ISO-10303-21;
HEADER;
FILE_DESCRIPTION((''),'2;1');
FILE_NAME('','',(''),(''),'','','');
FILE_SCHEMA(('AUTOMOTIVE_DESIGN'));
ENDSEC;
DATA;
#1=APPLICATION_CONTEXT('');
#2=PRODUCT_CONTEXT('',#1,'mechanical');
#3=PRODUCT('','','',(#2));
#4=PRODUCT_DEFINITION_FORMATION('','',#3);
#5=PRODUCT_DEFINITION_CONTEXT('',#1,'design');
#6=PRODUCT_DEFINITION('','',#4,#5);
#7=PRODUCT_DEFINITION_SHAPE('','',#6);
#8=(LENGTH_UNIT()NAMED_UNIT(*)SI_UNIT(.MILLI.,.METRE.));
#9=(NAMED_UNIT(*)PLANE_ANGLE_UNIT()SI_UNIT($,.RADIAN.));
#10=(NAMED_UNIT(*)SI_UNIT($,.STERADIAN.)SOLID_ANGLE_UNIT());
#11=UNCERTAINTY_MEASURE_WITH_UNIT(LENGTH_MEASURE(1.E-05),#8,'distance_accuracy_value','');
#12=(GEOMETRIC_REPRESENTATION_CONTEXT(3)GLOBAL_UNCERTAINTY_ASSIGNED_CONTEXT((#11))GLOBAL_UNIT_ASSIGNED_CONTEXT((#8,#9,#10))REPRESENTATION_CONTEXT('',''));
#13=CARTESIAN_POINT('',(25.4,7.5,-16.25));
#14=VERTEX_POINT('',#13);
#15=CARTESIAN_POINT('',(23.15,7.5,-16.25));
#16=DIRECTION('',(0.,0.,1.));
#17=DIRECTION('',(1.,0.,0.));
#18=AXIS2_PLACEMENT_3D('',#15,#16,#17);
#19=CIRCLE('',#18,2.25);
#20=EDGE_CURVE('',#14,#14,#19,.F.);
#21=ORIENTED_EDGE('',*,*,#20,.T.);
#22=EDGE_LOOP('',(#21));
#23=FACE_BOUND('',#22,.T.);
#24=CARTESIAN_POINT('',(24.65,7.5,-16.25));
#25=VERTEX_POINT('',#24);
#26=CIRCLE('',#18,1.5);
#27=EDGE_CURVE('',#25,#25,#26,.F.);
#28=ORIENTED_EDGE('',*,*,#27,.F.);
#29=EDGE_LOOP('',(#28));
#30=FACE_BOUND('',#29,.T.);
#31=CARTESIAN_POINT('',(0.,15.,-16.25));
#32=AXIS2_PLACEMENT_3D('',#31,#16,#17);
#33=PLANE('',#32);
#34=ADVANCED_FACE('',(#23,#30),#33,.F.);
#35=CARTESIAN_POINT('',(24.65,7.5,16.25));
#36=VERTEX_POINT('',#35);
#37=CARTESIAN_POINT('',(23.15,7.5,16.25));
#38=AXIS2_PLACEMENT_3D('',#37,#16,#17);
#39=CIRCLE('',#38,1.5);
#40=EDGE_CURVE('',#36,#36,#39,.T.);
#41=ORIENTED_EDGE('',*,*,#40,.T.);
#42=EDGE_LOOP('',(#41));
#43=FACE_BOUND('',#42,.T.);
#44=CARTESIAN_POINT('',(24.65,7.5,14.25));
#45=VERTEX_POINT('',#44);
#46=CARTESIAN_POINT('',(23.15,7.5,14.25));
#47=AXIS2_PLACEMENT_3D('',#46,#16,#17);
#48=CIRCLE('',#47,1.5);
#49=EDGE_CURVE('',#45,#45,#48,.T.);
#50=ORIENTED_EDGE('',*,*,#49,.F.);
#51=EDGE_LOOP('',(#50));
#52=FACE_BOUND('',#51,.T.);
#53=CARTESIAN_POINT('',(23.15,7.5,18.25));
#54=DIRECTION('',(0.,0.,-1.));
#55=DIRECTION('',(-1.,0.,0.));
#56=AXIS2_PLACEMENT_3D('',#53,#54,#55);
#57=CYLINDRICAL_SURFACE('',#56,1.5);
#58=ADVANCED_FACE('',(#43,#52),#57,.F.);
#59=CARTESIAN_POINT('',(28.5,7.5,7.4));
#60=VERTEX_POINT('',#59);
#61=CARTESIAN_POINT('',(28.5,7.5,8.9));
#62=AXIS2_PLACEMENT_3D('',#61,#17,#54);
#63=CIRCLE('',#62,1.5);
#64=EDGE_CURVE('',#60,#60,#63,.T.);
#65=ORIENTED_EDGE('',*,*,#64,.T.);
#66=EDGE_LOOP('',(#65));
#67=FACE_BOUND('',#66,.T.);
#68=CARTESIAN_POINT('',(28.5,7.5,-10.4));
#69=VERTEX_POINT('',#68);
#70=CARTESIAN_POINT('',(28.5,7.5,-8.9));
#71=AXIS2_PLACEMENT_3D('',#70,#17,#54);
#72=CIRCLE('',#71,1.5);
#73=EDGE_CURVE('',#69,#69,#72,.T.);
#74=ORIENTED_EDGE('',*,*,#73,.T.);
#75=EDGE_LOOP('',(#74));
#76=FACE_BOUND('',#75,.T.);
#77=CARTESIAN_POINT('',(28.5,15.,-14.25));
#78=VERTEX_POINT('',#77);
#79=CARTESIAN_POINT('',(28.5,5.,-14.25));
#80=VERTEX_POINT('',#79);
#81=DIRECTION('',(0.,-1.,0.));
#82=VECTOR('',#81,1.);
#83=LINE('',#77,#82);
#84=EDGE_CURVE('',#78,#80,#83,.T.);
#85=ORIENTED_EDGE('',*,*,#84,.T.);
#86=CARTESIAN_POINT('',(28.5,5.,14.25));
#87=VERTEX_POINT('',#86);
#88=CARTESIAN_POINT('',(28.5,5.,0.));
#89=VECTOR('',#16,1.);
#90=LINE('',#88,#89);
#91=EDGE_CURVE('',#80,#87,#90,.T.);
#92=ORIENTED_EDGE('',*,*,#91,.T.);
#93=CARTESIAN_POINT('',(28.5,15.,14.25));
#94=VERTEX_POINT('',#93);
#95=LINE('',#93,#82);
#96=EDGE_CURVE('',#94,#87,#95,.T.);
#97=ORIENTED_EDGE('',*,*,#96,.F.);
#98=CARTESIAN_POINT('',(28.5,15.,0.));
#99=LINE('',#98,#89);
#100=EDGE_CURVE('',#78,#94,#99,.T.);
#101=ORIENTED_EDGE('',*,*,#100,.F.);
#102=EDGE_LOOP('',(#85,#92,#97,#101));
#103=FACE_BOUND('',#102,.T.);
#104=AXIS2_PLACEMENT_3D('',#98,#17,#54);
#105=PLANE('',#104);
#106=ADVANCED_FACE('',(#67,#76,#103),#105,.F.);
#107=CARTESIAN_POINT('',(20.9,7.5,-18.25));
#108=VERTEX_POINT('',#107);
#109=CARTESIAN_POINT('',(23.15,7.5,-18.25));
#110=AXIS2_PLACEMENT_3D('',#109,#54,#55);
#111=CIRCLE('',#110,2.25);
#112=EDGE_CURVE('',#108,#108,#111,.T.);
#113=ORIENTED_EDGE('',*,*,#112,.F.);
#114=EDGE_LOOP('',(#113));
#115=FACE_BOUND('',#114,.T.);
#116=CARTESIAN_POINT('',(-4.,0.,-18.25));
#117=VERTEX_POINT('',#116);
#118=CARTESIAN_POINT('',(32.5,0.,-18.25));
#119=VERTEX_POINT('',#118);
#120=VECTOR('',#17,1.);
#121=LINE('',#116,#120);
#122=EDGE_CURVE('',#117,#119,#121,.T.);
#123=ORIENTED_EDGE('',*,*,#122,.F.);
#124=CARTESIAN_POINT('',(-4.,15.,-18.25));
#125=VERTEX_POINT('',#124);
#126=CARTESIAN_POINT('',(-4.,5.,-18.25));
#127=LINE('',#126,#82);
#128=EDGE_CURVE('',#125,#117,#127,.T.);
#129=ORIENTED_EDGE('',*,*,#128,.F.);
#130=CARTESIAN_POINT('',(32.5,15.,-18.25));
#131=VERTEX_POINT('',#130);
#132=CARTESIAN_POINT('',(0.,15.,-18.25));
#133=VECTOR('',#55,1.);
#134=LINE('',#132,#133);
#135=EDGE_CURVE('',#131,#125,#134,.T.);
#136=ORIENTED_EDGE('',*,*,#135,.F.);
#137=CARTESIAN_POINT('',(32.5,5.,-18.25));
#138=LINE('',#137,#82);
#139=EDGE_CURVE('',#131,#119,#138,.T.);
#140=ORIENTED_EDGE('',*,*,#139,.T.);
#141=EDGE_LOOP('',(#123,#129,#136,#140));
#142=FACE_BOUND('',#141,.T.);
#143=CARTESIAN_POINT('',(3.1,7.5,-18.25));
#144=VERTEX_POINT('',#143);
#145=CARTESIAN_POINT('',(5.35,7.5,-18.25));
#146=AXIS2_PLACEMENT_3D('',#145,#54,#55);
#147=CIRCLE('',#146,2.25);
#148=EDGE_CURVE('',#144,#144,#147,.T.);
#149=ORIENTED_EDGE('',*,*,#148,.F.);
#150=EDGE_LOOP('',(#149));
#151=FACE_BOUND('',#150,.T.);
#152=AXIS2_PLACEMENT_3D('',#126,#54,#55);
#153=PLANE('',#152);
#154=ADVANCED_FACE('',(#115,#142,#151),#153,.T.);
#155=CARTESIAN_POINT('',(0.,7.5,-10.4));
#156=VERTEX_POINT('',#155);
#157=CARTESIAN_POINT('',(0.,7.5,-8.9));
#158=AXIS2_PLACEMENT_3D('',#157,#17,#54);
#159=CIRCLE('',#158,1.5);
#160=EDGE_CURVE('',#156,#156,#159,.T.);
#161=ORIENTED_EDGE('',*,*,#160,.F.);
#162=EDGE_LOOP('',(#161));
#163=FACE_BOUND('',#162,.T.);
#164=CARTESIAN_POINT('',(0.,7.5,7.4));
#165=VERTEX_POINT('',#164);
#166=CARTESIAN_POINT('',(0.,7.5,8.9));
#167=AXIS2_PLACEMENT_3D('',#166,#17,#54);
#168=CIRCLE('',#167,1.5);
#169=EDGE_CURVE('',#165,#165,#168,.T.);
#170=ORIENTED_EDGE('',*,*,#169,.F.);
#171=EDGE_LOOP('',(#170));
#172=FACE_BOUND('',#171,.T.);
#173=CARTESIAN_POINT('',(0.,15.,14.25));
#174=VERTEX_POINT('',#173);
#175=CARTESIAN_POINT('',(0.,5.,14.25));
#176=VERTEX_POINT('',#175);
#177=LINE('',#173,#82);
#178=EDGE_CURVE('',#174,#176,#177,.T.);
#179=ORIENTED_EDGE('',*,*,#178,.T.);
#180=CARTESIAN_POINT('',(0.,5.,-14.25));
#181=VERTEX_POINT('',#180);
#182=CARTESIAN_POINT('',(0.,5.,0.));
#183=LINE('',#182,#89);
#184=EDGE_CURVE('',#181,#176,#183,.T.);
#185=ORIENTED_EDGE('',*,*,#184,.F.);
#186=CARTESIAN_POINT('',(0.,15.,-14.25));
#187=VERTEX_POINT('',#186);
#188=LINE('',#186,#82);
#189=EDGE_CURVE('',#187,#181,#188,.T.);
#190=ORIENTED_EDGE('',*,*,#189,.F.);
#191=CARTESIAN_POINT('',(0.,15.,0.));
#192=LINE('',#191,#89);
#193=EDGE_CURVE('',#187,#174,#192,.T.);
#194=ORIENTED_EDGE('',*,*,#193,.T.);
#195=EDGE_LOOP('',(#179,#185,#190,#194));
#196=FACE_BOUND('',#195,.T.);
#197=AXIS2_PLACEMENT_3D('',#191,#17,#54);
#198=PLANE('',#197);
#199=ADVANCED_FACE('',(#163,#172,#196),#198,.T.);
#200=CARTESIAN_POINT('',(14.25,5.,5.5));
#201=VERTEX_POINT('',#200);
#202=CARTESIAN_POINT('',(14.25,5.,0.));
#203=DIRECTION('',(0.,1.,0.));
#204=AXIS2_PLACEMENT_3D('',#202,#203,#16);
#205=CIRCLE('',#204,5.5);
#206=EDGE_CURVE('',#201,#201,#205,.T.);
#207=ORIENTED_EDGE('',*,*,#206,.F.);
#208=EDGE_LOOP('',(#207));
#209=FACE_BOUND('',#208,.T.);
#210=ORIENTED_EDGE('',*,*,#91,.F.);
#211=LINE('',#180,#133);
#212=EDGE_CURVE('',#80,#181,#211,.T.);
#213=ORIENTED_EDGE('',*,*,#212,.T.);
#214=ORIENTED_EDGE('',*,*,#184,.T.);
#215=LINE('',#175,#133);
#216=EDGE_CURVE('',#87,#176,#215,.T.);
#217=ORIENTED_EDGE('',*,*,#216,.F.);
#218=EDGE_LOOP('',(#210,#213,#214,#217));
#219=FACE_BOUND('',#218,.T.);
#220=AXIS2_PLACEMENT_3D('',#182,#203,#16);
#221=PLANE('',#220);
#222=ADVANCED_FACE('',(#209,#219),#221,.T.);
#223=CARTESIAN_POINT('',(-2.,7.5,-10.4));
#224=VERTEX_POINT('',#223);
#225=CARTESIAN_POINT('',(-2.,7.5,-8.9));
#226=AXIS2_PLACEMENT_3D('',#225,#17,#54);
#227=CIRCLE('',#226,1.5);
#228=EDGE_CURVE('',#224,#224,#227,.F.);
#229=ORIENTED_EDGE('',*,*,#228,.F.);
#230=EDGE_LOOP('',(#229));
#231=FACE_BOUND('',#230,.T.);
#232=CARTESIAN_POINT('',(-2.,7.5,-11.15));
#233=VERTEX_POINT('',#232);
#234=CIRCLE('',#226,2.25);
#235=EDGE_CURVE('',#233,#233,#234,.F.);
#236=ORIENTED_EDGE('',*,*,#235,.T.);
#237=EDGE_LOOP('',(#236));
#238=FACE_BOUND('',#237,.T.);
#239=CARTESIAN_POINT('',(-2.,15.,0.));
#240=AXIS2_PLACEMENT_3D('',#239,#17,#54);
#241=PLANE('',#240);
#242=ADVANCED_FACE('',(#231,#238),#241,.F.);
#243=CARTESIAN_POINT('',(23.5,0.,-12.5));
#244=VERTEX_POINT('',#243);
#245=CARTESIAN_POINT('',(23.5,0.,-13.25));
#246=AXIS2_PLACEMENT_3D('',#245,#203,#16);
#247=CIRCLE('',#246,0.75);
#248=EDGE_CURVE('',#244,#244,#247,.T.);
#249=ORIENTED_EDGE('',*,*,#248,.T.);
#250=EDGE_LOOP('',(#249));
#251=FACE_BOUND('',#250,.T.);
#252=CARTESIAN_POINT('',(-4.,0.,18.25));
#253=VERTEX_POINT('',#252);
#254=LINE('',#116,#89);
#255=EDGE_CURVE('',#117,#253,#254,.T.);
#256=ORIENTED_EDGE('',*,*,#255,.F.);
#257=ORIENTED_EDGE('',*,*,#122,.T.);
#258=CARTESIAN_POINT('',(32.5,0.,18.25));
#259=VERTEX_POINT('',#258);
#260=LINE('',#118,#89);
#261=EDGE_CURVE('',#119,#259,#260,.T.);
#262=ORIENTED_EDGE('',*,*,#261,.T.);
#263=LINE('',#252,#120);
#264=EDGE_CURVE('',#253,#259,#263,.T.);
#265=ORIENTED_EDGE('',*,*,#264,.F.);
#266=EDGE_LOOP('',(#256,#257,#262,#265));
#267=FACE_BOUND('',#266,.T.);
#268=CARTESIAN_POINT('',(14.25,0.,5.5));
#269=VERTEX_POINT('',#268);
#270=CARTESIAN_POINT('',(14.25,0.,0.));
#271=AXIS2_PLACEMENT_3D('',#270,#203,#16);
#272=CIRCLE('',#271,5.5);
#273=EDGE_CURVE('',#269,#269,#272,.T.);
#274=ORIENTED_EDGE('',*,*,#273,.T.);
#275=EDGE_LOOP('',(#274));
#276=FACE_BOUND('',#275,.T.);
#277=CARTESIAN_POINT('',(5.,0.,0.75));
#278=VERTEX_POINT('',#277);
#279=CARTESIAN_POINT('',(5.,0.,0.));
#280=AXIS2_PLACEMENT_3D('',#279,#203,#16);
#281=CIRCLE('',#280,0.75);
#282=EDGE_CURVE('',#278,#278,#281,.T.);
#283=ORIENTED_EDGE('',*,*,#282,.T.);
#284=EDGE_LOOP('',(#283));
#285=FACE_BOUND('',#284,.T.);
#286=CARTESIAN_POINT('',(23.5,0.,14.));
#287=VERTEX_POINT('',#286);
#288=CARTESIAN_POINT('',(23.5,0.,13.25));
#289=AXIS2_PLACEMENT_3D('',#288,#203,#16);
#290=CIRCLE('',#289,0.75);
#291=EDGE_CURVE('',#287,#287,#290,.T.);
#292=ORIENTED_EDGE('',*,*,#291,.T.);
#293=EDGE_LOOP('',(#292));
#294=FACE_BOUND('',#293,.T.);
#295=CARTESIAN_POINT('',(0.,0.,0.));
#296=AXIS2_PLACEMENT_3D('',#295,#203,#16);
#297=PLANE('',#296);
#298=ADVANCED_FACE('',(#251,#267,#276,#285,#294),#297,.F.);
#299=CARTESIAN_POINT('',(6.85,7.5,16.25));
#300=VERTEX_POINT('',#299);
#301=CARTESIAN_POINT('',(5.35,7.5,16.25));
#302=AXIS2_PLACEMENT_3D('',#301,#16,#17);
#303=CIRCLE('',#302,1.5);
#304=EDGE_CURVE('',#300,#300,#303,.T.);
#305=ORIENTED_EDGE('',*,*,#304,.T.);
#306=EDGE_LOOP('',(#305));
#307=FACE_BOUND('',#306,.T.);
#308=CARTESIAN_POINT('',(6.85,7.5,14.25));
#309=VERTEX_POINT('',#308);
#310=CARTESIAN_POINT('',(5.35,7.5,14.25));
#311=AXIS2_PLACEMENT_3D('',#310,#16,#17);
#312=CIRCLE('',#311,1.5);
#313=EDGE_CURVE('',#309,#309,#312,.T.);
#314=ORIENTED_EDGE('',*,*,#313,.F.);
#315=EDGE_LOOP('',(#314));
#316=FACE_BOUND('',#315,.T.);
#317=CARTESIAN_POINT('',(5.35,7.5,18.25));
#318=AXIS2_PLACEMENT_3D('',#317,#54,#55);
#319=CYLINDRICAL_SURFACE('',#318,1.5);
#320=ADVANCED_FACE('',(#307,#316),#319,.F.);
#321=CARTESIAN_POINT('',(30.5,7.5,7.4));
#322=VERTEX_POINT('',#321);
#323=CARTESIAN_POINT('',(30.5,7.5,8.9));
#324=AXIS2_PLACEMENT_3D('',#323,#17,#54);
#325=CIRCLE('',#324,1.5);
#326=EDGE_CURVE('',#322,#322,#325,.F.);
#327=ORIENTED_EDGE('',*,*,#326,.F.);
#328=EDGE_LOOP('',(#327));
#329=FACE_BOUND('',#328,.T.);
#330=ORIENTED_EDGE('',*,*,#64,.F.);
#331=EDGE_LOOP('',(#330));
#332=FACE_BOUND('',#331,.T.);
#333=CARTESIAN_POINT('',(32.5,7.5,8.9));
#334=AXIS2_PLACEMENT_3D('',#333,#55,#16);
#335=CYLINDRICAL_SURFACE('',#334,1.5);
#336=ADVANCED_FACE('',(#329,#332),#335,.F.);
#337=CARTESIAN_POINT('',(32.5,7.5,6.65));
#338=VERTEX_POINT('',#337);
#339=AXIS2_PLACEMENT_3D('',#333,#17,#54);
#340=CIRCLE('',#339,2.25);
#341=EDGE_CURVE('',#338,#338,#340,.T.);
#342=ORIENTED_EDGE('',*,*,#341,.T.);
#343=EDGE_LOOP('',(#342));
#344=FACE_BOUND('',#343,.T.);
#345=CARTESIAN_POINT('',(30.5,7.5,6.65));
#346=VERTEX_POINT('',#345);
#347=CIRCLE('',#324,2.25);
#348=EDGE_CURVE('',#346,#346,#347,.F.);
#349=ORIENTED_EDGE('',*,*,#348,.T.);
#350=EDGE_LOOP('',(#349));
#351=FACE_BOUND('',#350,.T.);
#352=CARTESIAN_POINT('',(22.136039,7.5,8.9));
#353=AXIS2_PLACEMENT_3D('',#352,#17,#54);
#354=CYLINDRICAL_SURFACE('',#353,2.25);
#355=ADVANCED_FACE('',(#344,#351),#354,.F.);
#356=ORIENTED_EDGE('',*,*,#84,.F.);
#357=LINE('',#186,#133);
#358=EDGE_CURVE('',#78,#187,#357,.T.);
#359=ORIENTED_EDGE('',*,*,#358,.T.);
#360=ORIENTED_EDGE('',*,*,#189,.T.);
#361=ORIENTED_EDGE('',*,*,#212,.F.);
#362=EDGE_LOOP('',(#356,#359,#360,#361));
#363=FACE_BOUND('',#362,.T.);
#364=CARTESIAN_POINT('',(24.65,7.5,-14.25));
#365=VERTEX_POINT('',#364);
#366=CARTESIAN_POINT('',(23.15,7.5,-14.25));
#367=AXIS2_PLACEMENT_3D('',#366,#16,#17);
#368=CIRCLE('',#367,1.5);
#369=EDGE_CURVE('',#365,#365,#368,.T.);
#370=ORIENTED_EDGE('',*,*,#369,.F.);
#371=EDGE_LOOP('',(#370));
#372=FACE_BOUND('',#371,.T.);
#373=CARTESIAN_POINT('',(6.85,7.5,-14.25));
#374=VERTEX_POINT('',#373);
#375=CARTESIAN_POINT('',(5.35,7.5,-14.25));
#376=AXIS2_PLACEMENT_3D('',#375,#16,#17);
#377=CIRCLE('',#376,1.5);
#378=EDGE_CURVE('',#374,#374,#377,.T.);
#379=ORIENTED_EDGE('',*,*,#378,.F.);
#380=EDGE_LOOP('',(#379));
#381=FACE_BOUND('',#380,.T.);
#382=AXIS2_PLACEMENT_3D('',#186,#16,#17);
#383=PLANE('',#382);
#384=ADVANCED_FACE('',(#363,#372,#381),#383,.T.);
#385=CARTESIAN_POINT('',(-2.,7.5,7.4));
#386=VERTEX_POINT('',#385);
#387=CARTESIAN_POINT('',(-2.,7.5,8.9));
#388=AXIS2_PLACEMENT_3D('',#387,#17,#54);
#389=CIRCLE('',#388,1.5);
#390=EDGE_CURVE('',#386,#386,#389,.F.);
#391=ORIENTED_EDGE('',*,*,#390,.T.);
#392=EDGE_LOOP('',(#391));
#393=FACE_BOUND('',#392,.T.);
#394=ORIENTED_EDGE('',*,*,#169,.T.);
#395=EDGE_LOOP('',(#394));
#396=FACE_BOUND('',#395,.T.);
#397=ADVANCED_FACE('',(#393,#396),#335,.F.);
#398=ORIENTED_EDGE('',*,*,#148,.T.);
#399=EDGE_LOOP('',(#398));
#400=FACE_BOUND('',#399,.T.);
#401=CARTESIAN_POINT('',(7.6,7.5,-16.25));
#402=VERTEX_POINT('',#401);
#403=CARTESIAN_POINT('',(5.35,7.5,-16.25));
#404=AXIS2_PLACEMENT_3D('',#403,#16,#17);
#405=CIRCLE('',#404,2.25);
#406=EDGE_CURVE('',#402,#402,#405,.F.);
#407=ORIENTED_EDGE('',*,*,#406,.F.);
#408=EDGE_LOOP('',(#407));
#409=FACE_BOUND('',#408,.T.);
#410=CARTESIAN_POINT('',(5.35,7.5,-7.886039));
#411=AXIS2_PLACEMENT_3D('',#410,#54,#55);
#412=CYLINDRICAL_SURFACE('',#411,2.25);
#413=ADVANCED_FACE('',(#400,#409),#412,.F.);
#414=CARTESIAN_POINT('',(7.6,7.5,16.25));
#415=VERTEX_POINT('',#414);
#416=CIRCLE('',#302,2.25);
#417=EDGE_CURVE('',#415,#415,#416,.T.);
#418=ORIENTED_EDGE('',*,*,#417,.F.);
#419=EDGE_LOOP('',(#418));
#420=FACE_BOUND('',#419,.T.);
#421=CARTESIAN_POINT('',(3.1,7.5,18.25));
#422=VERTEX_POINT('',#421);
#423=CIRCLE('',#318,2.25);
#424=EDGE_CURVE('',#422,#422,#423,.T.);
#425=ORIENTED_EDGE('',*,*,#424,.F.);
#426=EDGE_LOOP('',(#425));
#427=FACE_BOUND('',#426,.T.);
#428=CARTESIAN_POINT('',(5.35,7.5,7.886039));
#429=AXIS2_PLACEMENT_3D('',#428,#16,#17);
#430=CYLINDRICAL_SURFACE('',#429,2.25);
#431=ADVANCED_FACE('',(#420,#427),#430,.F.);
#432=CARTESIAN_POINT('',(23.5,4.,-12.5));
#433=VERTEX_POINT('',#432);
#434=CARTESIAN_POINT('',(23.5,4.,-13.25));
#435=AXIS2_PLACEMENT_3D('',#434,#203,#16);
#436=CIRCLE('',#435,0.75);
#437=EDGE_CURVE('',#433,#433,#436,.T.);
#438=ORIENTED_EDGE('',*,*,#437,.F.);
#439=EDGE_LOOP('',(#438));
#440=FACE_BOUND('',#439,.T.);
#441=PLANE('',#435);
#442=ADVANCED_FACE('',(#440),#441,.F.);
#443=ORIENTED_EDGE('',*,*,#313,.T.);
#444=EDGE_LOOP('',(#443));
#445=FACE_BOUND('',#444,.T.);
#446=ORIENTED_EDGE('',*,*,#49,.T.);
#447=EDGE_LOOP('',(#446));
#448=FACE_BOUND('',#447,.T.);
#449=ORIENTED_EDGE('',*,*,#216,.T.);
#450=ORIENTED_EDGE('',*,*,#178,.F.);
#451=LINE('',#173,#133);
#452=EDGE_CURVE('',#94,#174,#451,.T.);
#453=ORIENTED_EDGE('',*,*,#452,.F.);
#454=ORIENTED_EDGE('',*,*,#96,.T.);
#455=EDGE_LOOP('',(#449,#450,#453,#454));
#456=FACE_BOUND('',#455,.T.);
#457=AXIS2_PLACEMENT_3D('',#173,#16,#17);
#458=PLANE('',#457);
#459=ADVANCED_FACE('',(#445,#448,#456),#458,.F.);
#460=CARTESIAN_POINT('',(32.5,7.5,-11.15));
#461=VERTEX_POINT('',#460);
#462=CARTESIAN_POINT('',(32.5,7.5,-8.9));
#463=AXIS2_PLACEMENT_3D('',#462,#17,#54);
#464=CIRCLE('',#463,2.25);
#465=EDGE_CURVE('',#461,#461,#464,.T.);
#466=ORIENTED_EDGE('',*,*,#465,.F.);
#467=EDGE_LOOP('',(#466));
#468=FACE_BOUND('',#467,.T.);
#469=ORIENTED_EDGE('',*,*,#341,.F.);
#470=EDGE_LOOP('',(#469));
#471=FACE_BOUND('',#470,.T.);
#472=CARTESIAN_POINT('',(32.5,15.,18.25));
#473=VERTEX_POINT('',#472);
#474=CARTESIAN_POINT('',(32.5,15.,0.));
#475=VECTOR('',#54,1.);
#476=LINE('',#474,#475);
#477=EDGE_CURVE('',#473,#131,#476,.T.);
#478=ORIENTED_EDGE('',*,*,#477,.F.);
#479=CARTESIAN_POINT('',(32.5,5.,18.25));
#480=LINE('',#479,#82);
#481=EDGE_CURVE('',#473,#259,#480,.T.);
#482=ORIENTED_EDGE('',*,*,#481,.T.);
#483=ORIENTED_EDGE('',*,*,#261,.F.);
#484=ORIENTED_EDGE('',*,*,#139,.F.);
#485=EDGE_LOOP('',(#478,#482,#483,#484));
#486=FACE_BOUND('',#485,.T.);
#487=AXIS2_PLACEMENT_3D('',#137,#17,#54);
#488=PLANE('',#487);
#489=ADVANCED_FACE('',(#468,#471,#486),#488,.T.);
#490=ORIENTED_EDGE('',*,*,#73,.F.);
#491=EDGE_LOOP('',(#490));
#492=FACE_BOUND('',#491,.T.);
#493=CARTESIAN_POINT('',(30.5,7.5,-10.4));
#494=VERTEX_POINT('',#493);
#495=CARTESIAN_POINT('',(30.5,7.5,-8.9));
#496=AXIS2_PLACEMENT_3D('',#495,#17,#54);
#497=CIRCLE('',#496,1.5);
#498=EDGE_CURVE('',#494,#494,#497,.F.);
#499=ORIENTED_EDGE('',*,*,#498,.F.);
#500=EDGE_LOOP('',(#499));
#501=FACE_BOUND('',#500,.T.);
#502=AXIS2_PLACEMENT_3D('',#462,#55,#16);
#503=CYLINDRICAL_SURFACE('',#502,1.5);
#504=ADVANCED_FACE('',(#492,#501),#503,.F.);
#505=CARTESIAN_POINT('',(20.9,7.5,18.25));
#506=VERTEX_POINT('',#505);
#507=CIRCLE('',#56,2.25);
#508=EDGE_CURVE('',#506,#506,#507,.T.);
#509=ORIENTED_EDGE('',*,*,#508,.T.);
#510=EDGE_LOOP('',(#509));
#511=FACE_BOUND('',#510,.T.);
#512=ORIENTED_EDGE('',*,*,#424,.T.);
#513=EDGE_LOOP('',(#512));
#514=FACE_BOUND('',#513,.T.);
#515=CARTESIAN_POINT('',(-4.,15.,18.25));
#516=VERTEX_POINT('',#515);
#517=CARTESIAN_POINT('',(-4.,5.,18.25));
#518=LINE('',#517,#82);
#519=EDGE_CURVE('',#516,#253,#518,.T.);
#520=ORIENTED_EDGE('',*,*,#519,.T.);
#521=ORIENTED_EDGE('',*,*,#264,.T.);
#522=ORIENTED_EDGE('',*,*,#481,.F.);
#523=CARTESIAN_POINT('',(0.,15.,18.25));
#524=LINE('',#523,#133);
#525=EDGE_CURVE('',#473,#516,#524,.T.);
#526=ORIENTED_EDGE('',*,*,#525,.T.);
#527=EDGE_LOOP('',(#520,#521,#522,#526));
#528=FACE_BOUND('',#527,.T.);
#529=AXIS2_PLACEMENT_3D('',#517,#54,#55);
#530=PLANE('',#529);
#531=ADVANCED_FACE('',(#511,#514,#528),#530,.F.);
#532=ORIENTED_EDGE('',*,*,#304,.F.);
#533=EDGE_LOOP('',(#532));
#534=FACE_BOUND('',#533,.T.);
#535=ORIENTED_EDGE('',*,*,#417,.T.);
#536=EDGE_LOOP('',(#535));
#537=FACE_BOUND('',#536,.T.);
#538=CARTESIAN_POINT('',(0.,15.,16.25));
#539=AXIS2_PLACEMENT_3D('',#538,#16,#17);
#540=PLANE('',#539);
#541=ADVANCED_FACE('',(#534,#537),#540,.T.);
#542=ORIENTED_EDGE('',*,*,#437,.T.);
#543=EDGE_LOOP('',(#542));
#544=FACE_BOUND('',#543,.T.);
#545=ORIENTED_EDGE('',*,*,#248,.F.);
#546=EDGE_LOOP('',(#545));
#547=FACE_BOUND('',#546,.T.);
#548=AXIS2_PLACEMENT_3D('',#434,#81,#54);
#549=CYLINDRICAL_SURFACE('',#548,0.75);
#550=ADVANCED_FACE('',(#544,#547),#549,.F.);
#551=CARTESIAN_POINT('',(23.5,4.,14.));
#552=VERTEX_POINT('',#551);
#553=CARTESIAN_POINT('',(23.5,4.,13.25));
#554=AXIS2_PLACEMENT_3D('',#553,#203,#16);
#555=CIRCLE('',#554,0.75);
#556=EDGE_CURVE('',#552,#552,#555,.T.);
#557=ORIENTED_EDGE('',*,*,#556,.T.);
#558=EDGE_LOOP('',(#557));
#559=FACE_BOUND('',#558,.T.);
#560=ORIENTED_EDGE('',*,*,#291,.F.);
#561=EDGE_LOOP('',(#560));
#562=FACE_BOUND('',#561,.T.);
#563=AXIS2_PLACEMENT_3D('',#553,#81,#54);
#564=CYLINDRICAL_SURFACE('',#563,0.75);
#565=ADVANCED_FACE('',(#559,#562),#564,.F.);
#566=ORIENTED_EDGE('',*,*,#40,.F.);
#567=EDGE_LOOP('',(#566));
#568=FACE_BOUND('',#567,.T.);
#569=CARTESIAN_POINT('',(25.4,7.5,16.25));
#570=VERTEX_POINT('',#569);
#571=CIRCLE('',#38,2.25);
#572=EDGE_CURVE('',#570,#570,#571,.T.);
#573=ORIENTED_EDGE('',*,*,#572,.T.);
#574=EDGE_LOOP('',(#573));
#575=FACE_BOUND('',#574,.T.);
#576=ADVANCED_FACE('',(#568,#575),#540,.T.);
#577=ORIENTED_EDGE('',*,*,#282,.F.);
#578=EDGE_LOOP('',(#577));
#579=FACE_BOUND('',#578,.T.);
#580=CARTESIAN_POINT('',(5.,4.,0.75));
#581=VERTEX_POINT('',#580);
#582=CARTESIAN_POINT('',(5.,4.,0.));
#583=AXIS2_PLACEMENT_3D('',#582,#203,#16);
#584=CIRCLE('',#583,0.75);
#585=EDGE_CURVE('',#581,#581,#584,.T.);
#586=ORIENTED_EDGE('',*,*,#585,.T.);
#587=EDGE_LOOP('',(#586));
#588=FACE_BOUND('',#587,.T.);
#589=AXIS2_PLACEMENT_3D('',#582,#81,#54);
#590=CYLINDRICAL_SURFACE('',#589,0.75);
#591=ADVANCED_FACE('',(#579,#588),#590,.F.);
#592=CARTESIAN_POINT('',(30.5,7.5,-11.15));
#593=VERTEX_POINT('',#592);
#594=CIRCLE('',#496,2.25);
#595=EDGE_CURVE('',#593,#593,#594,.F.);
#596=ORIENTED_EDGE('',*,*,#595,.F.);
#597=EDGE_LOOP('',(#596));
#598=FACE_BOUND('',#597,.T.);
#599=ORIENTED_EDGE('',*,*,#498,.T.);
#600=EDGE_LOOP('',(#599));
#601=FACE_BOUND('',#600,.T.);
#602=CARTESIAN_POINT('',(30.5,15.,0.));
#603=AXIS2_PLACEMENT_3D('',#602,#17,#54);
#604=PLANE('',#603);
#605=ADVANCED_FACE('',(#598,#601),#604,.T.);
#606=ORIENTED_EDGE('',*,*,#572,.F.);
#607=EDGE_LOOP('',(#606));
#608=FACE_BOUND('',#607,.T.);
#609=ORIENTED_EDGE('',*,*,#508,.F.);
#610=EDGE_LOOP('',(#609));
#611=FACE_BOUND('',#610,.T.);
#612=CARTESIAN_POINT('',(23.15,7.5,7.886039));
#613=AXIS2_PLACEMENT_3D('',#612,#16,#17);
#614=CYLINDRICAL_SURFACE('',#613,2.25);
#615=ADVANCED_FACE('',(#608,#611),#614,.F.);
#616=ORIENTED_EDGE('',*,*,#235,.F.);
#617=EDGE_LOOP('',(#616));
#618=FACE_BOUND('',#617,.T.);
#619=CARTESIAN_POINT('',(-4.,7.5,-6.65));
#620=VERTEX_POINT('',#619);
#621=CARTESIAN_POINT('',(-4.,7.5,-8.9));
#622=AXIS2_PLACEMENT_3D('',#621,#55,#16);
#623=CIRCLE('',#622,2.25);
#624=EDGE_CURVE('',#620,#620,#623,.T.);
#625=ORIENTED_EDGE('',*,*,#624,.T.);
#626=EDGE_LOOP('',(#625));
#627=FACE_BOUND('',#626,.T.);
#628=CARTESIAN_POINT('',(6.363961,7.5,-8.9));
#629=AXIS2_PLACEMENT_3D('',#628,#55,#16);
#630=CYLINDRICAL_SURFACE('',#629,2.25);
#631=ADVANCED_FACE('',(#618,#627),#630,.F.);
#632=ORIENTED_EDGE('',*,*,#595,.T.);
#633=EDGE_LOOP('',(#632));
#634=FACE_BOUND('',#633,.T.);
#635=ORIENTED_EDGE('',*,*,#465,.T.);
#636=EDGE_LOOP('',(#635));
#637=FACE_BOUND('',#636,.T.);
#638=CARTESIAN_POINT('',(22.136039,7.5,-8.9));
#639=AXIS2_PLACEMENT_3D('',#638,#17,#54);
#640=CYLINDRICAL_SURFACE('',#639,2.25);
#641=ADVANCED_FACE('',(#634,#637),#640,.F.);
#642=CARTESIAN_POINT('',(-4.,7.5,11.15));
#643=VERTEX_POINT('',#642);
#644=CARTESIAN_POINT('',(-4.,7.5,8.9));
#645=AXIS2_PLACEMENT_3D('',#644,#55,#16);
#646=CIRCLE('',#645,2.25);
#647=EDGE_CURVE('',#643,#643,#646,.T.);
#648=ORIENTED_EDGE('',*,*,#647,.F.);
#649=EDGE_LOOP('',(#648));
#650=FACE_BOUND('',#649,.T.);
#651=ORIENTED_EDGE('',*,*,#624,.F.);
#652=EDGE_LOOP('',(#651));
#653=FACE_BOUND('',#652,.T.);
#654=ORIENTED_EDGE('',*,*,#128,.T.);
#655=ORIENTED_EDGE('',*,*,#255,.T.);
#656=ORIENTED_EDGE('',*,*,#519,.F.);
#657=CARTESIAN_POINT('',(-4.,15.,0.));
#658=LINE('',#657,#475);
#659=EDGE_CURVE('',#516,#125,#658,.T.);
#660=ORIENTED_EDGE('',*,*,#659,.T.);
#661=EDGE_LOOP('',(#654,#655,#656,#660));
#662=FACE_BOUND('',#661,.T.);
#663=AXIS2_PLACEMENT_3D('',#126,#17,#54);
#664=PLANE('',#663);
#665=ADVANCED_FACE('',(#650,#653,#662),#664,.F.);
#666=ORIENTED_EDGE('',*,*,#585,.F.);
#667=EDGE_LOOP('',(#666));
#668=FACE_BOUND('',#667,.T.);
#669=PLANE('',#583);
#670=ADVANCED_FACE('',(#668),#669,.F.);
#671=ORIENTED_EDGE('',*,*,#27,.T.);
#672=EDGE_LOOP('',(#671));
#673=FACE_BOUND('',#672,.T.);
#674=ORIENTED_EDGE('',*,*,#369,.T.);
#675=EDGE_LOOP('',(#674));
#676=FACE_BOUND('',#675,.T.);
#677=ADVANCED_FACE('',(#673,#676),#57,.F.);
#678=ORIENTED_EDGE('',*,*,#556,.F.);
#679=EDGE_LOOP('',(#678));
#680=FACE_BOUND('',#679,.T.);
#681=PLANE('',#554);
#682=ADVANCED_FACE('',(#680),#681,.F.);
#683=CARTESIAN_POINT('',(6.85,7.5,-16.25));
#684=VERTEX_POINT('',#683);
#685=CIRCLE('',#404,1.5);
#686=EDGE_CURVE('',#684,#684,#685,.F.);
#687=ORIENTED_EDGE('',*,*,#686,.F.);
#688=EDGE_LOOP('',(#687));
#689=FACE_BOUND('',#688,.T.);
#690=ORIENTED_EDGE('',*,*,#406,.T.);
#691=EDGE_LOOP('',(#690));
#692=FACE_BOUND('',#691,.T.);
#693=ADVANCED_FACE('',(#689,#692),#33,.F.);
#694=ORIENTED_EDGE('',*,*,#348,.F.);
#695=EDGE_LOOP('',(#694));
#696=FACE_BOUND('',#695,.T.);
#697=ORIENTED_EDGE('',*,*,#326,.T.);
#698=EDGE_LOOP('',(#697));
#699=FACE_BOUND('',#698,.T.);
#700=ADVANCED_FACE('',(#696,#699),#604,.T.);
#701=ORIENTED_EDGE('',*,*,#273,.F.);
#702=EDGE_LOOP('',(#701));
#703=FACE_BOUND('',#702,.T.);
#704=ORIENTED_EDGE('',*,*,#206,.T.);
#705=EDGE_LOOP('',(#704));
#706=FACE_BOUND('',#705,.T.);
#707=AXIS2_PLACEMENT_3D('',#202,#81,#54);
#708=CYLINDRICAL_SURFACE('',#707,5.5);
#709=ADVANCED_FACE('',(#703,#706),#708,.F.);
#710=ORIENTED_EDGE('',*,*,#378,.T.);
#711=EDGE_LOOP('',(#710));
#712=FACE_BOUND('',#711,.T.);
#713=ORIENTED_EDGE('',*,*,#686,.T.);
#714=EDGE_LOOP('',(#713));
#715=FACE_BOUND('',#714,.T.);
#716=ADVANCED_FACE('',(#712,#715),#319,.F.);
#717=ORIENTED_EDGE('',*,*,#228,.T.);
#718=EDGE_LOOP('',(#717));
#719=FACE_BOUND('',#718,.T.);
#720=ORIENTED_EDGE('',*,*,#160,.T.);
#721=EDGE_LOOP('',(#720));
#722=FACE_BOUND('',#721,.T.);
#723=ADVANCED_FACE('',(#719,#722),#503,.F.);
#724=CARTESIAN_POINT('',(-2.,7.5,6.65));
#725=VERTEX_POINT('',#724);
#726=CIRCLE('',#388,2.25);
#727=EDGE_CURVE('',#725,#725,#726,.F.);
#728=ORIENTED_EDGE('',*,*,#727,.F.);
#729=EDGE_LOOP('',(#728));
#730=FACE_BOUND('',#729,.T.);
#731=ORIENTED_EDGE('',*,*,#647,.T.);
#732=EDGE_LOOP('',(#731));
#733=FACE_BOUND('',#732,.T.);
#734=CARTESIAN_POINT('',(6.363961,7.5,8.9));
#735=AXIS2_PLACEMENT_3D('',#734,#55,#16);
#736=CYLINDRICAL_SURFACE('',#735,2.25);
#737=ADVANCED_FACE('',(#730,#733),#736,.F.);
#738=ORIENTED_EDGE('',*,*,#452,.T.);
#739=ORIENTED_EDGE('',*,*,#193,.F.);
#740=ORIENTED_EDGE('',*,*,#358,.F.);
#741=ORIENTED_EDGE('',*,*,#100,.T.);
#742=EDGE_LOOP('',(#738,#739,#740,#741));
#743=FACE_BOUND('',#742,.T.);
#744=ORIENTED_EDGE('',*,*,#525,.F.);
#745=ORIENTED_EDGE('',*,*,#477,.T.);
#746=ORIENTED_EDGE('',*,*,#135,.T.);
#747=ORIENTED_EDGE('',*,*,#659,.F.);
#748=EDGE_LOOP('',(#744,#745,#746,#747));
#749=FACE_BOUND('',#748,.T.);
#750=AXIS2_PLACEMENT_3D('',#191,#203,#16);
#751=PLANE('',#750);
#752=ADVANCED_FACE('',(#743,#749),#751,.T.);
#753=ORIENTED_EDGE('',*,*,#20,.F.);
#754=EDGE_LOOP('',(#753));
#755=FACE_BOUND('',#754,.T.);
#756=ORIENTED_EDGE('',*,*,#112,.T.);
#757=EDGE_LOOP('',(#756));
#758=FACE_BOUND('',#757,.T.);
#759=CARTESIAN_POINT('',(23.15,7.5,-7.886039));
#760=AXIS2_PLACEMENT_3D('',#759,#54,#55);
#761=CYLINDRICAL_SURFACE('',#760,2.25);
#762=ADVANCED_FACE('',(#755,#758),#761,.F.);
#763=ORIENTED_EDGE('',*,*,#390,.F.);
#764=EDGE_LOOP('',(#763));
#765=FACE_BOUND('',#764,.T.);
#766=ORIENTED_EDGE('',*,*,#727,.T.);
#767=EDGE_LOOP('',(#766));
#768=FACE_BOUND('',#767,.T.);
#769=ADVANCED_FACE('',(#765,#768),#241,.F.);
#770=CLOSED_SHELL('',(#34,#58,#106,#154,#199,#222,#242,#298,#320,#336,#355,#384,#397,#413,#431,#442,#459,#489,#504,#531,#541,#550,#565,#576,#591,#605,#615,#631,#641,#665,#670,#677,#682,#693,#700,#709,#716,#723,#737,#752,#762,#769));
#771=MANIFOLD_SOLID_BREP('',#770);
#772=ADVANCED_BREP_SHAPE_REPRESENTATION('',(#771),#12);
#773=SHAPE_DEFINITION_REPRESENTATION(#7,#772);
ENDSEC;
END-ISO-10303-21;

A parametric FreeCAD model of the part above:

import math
import FreeCAD as App
import Part
import Sketcher
Q = App.Units.Quantity


def add_polygon(sketch, points):
    """Adds a closed chain of lines whose ends are joined by coincident constraints."""
    first, n = sketch.GeometryCount, len(points)
    for a, b in zip(points, points[1:] + points[:1]):
        sketch.addGeometry(Part.LineSegment(App.Vector(*a, 0), App.Vector(*b, 0)), False)
    for i in range(n):
        sketch.addConstraint(Sketcher.Constraint("Coincident", first + i, 2, first + (i + 1) % n, 1))

doc = App.newDocument("Part")
body = doc.addObject("PartDesign::Body", "Body")

# Sketch on XZ plane
sketch1 = body.newObject("Sketcher::SketchObject", "Sketch")
sketch1.AttachmentSupport = (doc.getObject("XZ_Plane"), [""])
sketch1.MapMode = "FlatFace"
add_polygon(sketch1, [(-4, -18), (-4, 18), (32, 18), (32, -18)])  # lines 0-3
sketch1.addGeometry(Part.Circle(App.Vector(14, 0, 0), App.Vector(0, 0, 1), 6), False)  # 4
sketch1.addConstraint(Sketcher.Constraint("Vertical", 0))
sketch1.addConstraint(Sketcher.Constraint("Horizontal", 1))
sketch1.addConstraint(Sketcher.Constraint("Vertical", 2))
sketch1.addConstraint(Sketcher.Constraint("Horizontal", 3))
sketch1.addConstraint(Sketcher.Constraint("PointOnObject", 4, 3, -1))
sketch1.addConstraint(Sketcher.Constraint("Equal", 3, 0))
sketch1.addConstraint(Sketcher.Constraint("Diameter", 4, Q("11 mm")))
sketch1.addConstraint(Sketcher.Constraint("DistanceX", 1, 1, 1, 2, Q("36.5 mm")))
sketch1.addConstraint(Sketcher.Constraint("DistanceX", 0, 2, -1, 1, Q("4 mm")))
sketch1.addConstraint(Sketcher.Constraint("DistanceX", -1, 1, 4, 3, Q("14.25 mm")))
sketch1.addConstraint(Sketcher.Constraint("DistanceY", -1, 1, 0, 2, Q("18.25 mm")))
pad1 = body.newObject("PartDesign::Pad", "Pad")
pad1.Profile = sketch1
pad1.Length = 5
pad1.Reversed = True

# Sketch on XZ plane
sketch2 = body.newObject("Sketcher::SketchObject", "Sketch001")
sketch2.AttachmentSupport = (doc.getObject("XZ_Plane"), [""])
sketch2.MapMode = "FlatFace"
sketch2.AttachmentOffset = App.Placement(App.Vector(0, 0, -5), App.Rotation())
add_polygon(sketch2, [(-4, -18), (-4, 18), (32, 18), (32, -18)])  # lines 0-3
add_polygon(sketch2, [(28, 14), (0, 14), (0, -14), (28, -14)])  # lines 4-7
sketch2.addConstraint(Sketcher.Constraint("Vertical", 0))
sketch2.addConstraint(Sketcher.Constraint("Horizontal", 1))
sketch2.addConstraint(Sketcher.Constraint("Vertical", 2))
sketch2.addConstraint(Sketcher.Constraint("Horizontal", 3))
sketch2.addConstraint(Sketcher.Constraint("Horizontal", 4))
sketch2.addConstraint(Sketcher.Constraint("Vertical", 5))
sketch2.addConstraint(Sketcher.Constraint("Horizontal", 6))
sketch2.addConstraint(Sketcher.Constraint("Vertical", 7))
sketch2.addConstraint(Sketcher.Constraint("Symmetric", 4, 2, 5, 2, -1, 1))
sketch2.addConstraint(Sketcher.Constraint("Equal", 3, 0))
sketch2.addConstraint(Sketcher.Constraint("Equal", 6, 5))
sketch2.addConstraint(Sketcher.Constraint("DistanceX", 1, 1, 1, 2, Q("36.5 mm")))
sketch2.addConstraint(Sketcher.Constraint("DistanceX", 4, 2, 4, 1, Q("28.5 mm")))
sketch2.addConstraint(Sketcher.Constraint("DistanceX", 0, 2, -1, 1, Q("4 mm")))
sketch2.addConstraint(Sketcher.Constraint("DistanceY", 4, 2, 0, 2, Q("4 mm")))
pad2 = body.newObject("PartDesign::Pad", "Pad001")
pad2.Profile = sketch2
pad2.Length = 10
pad2.Reversed = True

# Sketch on XY plane
sketch3 = body.newObject("Sketcher::SketchObject", "Sketch002")
sketch3.AttachmentSupport = (doc.getObject("XY_Plane"), [""])
sketch3.MapMode = "FlatFace"
sketch3.AttachmentOffset = App.Placement(App.Vector(0, 0, -18.25), App.Rotation())
sketch3.addGeometry(Part.Circle(App.Vector(23.1, 7.5, 0), App.Vector(0, 0, 1), 1.5), False)
sketch3.addGeometry(Part.Circle(App.Vector(5.3, 7.5, 0), App.Vector(0, 0, 1), 1.5), False)
sketch3.addConstraint(Sketcher.Constraint("Equal", 0, 1))
sketch3.addConstraint(Sketcher.Constraint("Horizontal", 0, 3, 1, 3))
sketch3.addConstraint(Sketcher.Constraint("Diameter", 0, Q("3 mm")))
sketch3.addConstraint(Sketcher.Constraint("DistanceY", -1, 1, 0, 3, Q("7.5 mm")))
sketch3.addConstraint(Sketcher.Constraint("DistanceX", 1, 3, 0, 3, Q("17.8 mm")))
sketch3.addConstraint(Sketcher.Constraint("DistanceX", -1, 1, 0, 3, Q("23.15 mm")))
pocket1 = body.newObject("PartDesign::Pocket", "Pocket")
pocket1.Profile = sketch3
pocket1.Type = "ThroughAll"
pocket1.Reversed = True

# Sketch on XY plane
sketch4 = body.newObject("Sketcher::SketchObject", "Sketch003")
sketch4.AttachmentSupport = (doc.getObject("XY_Plane"), [""])
sketch4.MapMode = "FlatFace"
sketch4.AttachmentOffset = App.Placement(App.Vector(0, 0, -18.25), App.Rotation())
sketch4.addGeometry(Part.Circle(App.Vector(23.1, 7.5, 0), App.Vector(0, 0, 1), 2.2), False)
sketch4.addGeometry(Part.Circle(App.Vector(5.3, 7.5, 0), App.Vector(0, 0, 1), 2.2), False)
sketch4.addConstraint(Sketcher.Constraint("Equal", 0, 1))
sketch4.addConstraint(Sketcher.Constraint("Horizontal", 0, 3, 1, 3))
sketch4.addConstraint(Sketcher.Constraint("Diameter", 0, Q("4.5 mm")))
sketch4.addConstraint(Sketcher.Constraint("DistanceY", -1, 1, 0, 3, Q("7.5 mm")))
sketch4.addConstraint(Sketcher.Constraint("DistanceX", 1, 3, 0, 3, Q("17.8 mm")))
sketch4.addConstraint(Sketcher.Constraint("DistanceX", -1, 1, 0, 3, Q("23.15 mm")))
pocket2 = body.newObject("PartDesign::Pocket", "Pocket001")
pocket2.Profile = sketch4
pocket2.Length = 2
pocket2.Reversed = True

# Sketch on XY plane
sketch5 = body.newObject("Sketcher::SketchObject", "Sketch004")
sketch5.AttachmentSupport = (doc.getObject("XY_Plane"), [""])
sketch5.MapMode = "FlatFace"
sketch5.AttachmentOffset = App.Placement(App.Vector(0, 0, 16.25), App.Rotation())
sketch5.addGeometry(Part.Circle(App.Vector(23.1, 7.5, 0), App.Vector(0, 0, 1), 2.2), False)
sketch5.addGeometry(Part.Circle(App.Vector(23.1, 7.5, 0), App.Vector(0, 0, 1), 1.5), False)
sketch5.addGeometry(Part.Circle(App.Vector(5.3, 7.5, 0), App.Vector(0, 0, 1), 2.2), False)
sketch5.addGeometry(Part.Circle(App.Vector(5.3, 7.5, 0), App.Vector(0, 0, 1), 1.5), False)
sketch5.addConstraint(Sketcher.Constraint("Coincident", 1, 3, 0, 3))
sketch5.addConstraint(Sketcher.Constraint("Coincident", 3, 3, 2, 3))
sketch5.addConstraint(Sketcher.Constraint("Equal", 0, 2))
sketch5.addConstraint(Sketcher.Constraint("Equal", 1, 3))
sketch5.addConstraint(Sketcher.Constraint("Horizontal", 1, 3, 2, 3))
sketch5.addConstraint(Sketcher.Constraint("Diameter", 1, Q("3 mm")))
sketch5.addConstraint(Sketcher.Constraint("Diameter", 0, Q("4.5 mm")))
sketch5.addConstraint(Sketcher.Constraint("DistanceY", -1, 1, 0, 3, Q("7.5 mm")))
sketch5.addConstraint(Sketcher.Constraint("DistanceX", 2, 3, 0, 3, Q("17.8 mm")))
sketch5.addConstraint(Sketcher.Constraint("DistanceX", -1, 1, 0, 3, Q("23.15 mm")))
pocket3 = body.newObject("PartDesign::Pocket", "Pocket002")
pocket3.Profile = sketch5
pocket3.Length = 2
pocket3.Reversed = True

# Sketch on YZ plane
sketch6 = body.newObject("Sketcher::SketchObject", "Sketch005")
sketch6.AttachmentSupport = (doc.getObject("YZ_Plane"), [""])
sketch6.MapMode = "FlatFace"
sketch6.AttachmentOffset = App.Placement(App.Vector(0, 0, -4), App.Rotation())
sketch6.addGeometry(Part.Circle(App.Vector(7.5, -8.9, 0), App.Vector(0, 0, 1), 1.5), False)
sketch6.addGeometry(Part.Circle(App.Vector(7.5, 8.9, 0), App.Vector(0, 0, 1), 1.5), False)
sketch6.addConstraint(Sketcher.Constraint("Equal", 0, 1))
sketch6.addConstraint(Sketcher.Constraint("Symmetric", 0, 3, 1, 3, -1))
sketch6.addConstraint(Sketcher.Constraint("Diameter", 0, Q("3 mm")))
sketch6.addConstraint(Sketcher.Constraint("DistanceX", -1, 1, 0, 3, Q("7.5 mm")))
sketch6.addConstraint(Sketcher.Constraint("DistanceY", 0, 3, -1, 1, Q("8.9 mm")))
pocket4 = body.newObject("PartDesign::Pocket", "Pocket003")
pocket4.Profile = sketch6
pocket4.Type = "ThroughAll"
pocket4.Reversed = True

# Sketch on YZ plane
sketch7 = body.newObject("Sketcher::SketchObject", "Sketch006")
sketch7.AttachmentSupport = (doc.getObject("YZ_Plane"), [""])
sketch7.MapMode = "FlatFace"
sketch7.AttachmentOffset = App.Placement(App.Vector(0, 0, -4), App.Rotation())
sketch7.addGeometry(Part.Circle(App.Vector(7.5, -8.9, 0), App.Vector(0, 0, 1), 2.2), False)
sketch7.addGeometry(Part.Circle(App.Vector(7.5, 8.9, 0), App.Vector(0, 0, 1), 2.2), False)
sketch7.addConstraint(Sketcher.Constraint("Equal", 0, 1))
sketch7.addConstraint(Sketcher.Constraint("Symmetric", 0, 3, 1, 3, -1))
sketch7.addConstraint(Sketcher.Constraint("Diameter", 0, Q("4.5 mm")))
sketch7.addConstraint(Sketcher.Constraint("DistanceX", -1, 1, 0, 3, Q("7.5 mm")))
sketch7.addConstraint(Sketcher.Constraint("DistanceY", 0, 3, -1, 1, Q("8.9 mm")))
pocket5 = body.newObject("PartDesign::Pocket", "Pocket004")
pocket5.Profile = sketch7
pocket5.Length = 2
pocket5.Reversed = True

# Sketch on YZ plane
sketch8 = body.newObject("Sketcher::SketchObject", "Sketch007")
sketch8.AttachmentSupport = (doc.getObject("YZ_Plane"), [""])
sketch8.MapMode = "FlatFace"
sketch8.AttachmentOffset = App.Placement(App.Vector(0, 0, 30.5), App.Rotation())
sketch8.addGeometry(Part.Circle(App.Vector(7.5, -8.9, 0), App.Vector(0, 0, 1), 2.2), False)
sketch8.addGeometry(Part.Circle(App.Vector(7.5, 8.9, 0), App.Vector(0, 0, 1), 2.2), False)
sketch8.addConstraint(Sketcher.Constraint("Equal", 0, 1))
sketch8.addConstraint(Sketcher.Constraint("Symmetric", 0, 3, 1, 3, -1))
sketch8.addConstraint(Sketcher.Constraint("Diameter", 0, Q("4.5 mm")))
sketch8.addConstraint(Sketcher.Constraint("DistanceX", -1, 1, 0, 3, Q("7.5 mm")))
sketch8.addConstraint(Sketcher.Constraint("DistanceY", 0, 3, -1, 1, Q("8.9 mm")))
pocket6 = body.newObject("PartDesign::Pocket", "Pocket005")
pocket6.Profile = sketch8
pocket6.Length = 2
pocket6.Reversed = True

# Sketch on XZ plane
sketch9 = body.newObject("Sketcher::SketchObject", "Sketch008")
sketch9.AttachmentSupport = (doc.getObject("XZ_Plane"), [""])
sketch9.MapMode = "FlatFace"
sketch9.AttachmentOffset = App.Placement(App.Vector(0, 0, 6), App.Rotation())
add_polygon(sketch9, [(7, 11), (7, -11), (40, -11), (40, 11)])  # lines 0-3
sketch9.addGeometry(Part.Circle(App.Vector(14, 0, 0), App.Vector(0, 0, 1), 6), False)  # 4
sketch9.addConstraint(Sketcher.Constraint("Vertical", 0))
sketch9.addConstraint(Sketcher.Constraint("Horizontal", 1))
sketch9.addConstraint(Sketcher.Constraint("Vertical", 2))
sketch9.addConstraint(Sketcher.Constraint("Horizontal", 3))
sketch9.addConstraint(Sketcher.Constraint("PointOnObject", 4, 3, -1))
sketch9.addConstraint(Sketcher.Constraint("Diameter", 4, Q("11 mm")))
sketch9.addConstraint(Sketcher.Constraint("DistanceY", 0, 2, 0, 1, Q("22 mm")))
sketch9.addConstraint(Sketcher.Constraint("DistanceX", 1, 1, 1, 2, Q("32.5 mm")))
sketch9.addConstraint(Sketcher.Constraint("DistanceY", 0, 2, -1, 1, Q("11 mm")))
sketch9.addConstraint(Sketcher.Constraint("DistanceX", 0, 2, 4, 3, Q("7 mm")))
sketch9.addConstraint(Sketcher.Constraint("DistanceX", -1, 1, 4, 3, Q("14.25 mm")))
pad3 = body.newObject("PartDesign::Pad", "Pad002")
pad3.Profile = sketch9
pad3.Length = 6
pad3.Reversed = True

# Sketch on XZ plane
sketch10 = body.newObject("Sketcher::SketchObject", "Sketch009")
sketch10.AttachmentSupport = (doc.getObject("XZ_Plane"), [""])
sketch10.MapMode = "FlatFace"
sketch10.AttachmentOffset = App.Placement(App.Vector(0, 0, 14), App.Rotation())
add_polygon(sketch10, [(7.2, 11), (7.2, -11), (39.8, -11), (39.8, 11)])  # lines 0-3
sketch10.addGeometry(Part.ArcOfCircle(Part.Circle(App.Vector(14.2, 0, 0), App.Vector(0, 0, 1), 5.5), math.radians(46), math.radians(314)), False)  # 4
sketch10.addGeometry(Part.ArcOfCircle(Part.Circle(App.Vector(27.2, 0, 0), App.Vector(0, 0, 1), 10), math.radians(26), math.radians(157)), False)  # 5
sketch10.addGeometry(Part.ArcOfCircle(Part.Circle(App.Vector(33.8, 0, 0), App.Vector(0, 0, 1), 5), math.radians(0), math.radians(60)), False)  # 6
sketch10.addGeometry(Part.ArcOfCircle(Part.Circle(App.Vector(33.8, 0, 0), App.Vector(0, 0, 1), 5), math.radians(-60), math.radians(0)), False)  # 7
sketch10.addGeometry(Part.ArcOfCircle(Part.Circle(App.Vector(27.2, 0, 0), App.Vector(0, 0, 1), 10), math.radians(-157), math.radians(-26)), False)  # 8
sketch10.addConstraint(Sketcher.Constraint("Coincident", 4, 1, 5, 2))
sketch10.addConstraint(Sketcher.Constraint("Coincident", 5, 1, 6, 2))
sketch10.addConstraint(Sketcher.Constraint("Tangent", 6, 1, 7, 2))
sketch10.addConstraint(Sketcher.Constraint("Coincident", 7, 1, 8, 2))
sketch10.addConstraint(Sketcher.Constraint("Coincident", 8, 1, 4, 2))
sketch10.addConstraint(Sketcher.Constraint("Vertical", 0))
sketch10.addConstraint(Sketcher.Constraint("Horizontal", 1))
sketch10.addConstraint(Sketcher.Constraint("Vertical", 2))
sketch10.addConstraint(Sketcher.Constraint("Horizontal", 3))
sketch10.addConstraint(Sketcher.Constraint("Coincident", 8, 3, 5, 3))
sketch10.addConstraint(Sketcher.Constraint("Equal", 6, 7))
sketch10.addConstraint(Sketcher.Constraint("Equal", 5, 8))
sketch10.addConstraint(Sketcher.Constraint("Symmetric", 5, 1, 7, 1, -1))
sketch10.addConstraint(Sketcher.Constraint("PointOnObject", 4, 3, -1))
sketch10.addConstraint(Sketcher.Constraint("PointOnObject", 6, 1, -1))
sketch10.addConstraint(Sketcher.Constraint("Radius", 5, Q("10 mm")))
sketch10.addConstraint(Sketcher.Constraint("Radius", 6, Q("5 mm")))
sketch10.addConstraint(Sketcher.Constraint("Radius", 4, Q("5.5 mm")))
sketch10.addConstraint(Sketcher.Constraint("DistanceY", 0, 2, 0, 1, Q("22 mm")))
sketch10.addConstraint(Sketcher.Constraint("DistanceX", 1, 1, 1, 2, Q("32.5 mm")))
sketch10.addConstraint(Sketcher.Constraint("DistanceY", 0, 2, -1, 1, Q("11 mm")))
sketch10.addConstraint(Sketcher.Constraint("DistanceX", 4, 3, 5, 3, Q("13 mm")))
sketch10.addConstraint(Sketcher.Constraint("DistanceX", 0, 2, 4, 3, Q("7 mm")))
sketch10.addConstraint(Sketcher.Constraint("DistanceX", 7, 3, 1, 2, Q("6 mm")))
sketch10.addConstraint(Sketcher.Constraint("DistanceX", -1, 1, 4, 3, Q("14.25 mm")))
pad4 = body.newObject("PartDesign::Pad", "Pad003")
pad4.Profile = sketch10
pad4.Length = 8
pad4.Reversed = True

# Sketch on XZ plane
sketch11 = body.newObject("Sketcher::SketchObject", "Sketch010")
sketch11.AttachmentSupport = (doc.getObject("XZ_Plane"), [""])
sketch11.MapMode = "FlatFace"
sketch11.AttachmentOffset = App.Placement(App.Vector(0, 0, 6), App.Rotation())
sketch11.addGeometry(Part.Circle(App.Vector(27.2, 0, 0), App.Vector(0, 0, 1), 1), False)
sketch11.addConstraint(Sketcher.Constraint("PointOnObject", 0, 3, -1))
sketch11.addConstraint(Sketcher.Constraint("Diameter", 0, Q("2 mm")))
sketch11.addConstraint(Sketcher.Constraint("DistanceX", -1, 1, 0, 3, Q("27.25 mm")))
pocket7 = body.newObject("PartDesign::Pocket", "Pocket006")
pocket7.Profile = sketch11
pocket7.Length = 5

# Sketch on XZ plane
sketch12 = body.newObject("Sketcher::SketchObject", "Sketch011")
sketch12.AttachmentSupport = (doc.getObject("XZ_Plane"), [""])
sketch12.MapMode = "FlatFace"
add_polygon(sketch12, [(39.8, 11), (39.8, 15.5), (2.8, 15.5), (2.8, -15.5), (39.8, -15.5), (39.8, -11), (7.2, -11), (7.2, 11)])  # lines 0-7
sketch12.addConstraint(Sketcher.Constraint("Vertical", 0))
sketch12.addConstraint(Sketcher.Constraint("Horizontal", 1))
sketch12.addConstraint(Sketcher.Constraint("Vertical", 2))
sketch12.addConstraint(Sketcher.Constraint("Horizontal", 3))
sketch12.addConstraint(Sketcher.Constraint("Vertical", 4))
sketch12.addConstraint(Sketcher.Constraint("Horizontal", 5))
sketch12.addConstraint(Sketcher.Constraint("Vertical", 6))
sketch12.addConstraint(Sketcher.Constraint("Horizontal", 7))
sketch12.addConstraint(Sketcher.Constraint("Symmetric", 0, 2, 3, 2, -1))
sketch12.addConstraint(Sketcher.Constraint("Equal", 0, 4))
sketch12.addConstraint(Sketcher.Constraint("DistanceX", 1, 2, 1, 1, Q("37 mm")))
sketch12.addConstraint(Sketcher.Constraint("DistanceY", 2, 2, 2, 1, Q("31 mm")))
sketch12.addConstraint(Sketcher.Constraint("DistanceY", 6, 1, 6, 2, Q("22 mm")))
sketch12.addConstraint(Sketcher.Constraint("DistanceX", 5, 2, 5, 1, Q("32.5 mm")))
sketch12.addConstraint(Sketcher.Constraint("DistanceX", -1, 1, 0, 2, Q("39.75 mm")))
pad5 = body.newObject("PartDesign::Pad", "Pad004")
pad5.Profile = sketch12
pad5.Length = 2

# Sketch on XZ plane
sketch13 = body.newObject("Sketcher::SketchObject", "Sketch012")
sketch13.AttachmentSupport = (doc.getObject("XZ_Plane"), [""])
sketch13.MapMode = "FlatFace"
sketch13.addGeometry(Part.Circle(App.Vector(23.5, 13.2, 0), App.Vector(0, 0, 1), 0.8), False)
sketch13.addGeometry(Part.Circle(App.Vector(5, 0, 0), App.Vector(0, 0, 1), 0.8), False)
sketch13.addGeometry(Part.Circle(App.Vector(23.5, -13.2, 0), App.Vector(0, 0, 1), 0.8), False)
sketch13.addConstraint(Sketcher.Constraint("Equal", 0, 1))
sketch13.addConstraint(Sketcher.Constraint("Equal", 1, 2))
sketch13.addConstraint(Sketcher.Constraint("Symmetric", 0, 3, 2, 3, -1))
sketch13.addConstraint(Sketcher.Constraint("PointOnObject", 1, 3, -1))
sketch13.addConstraint(Sketcher.Constraint("Diameter", 0, Q("1.5 mm")))
sketch13.addConstraint(Sketcher.Constraint("DistanceX", -1, 1, 1, 3, Q("5 mm")))
sketch13.addConstraint(Sketcher.Constraint("DistanceX", -1, 1, 0, 3, Q("23.5 mm")))
sketch13.addConstraint(Sketcher.Constraint("DistanceY", 2, 3, 0, 3, Q("26.5 mm")))
pocket8 = body.newObject("PartDesign::Pocket", "Pocket007")
pocket8.Profile = sketch13
pocket8.Length = 4

# Sketch on XZ plane
sketch14 = body.newObject("Sketcher::SketchObject", "Sketch013")
sketch14.AttachmentSupport = (doc.getObject("XZ_Plane"), [""])
sketch14.MapMode = "FlatFace"
sketch14.addGeometry(Part.Circle(App.Vector(23.5, 13.2, 0), App.Vector(0, 0, 1), 1.5), False)
sketch14.addConstraint(Sketcher.Constraint("Diameter", 0, Q("3 mm")))
sketch14.addConstraint(Sketcher.Constraint("DistanceX", -1, 1, 0, 3, Q("23.5 mm")))
sketch14.addConstraint(Sketcher.Constraint("DistanceY", -1, 1, 0, 3, Q("13.25 mm")))
pocket9 = body.newObject("PartDesign::Pocket", "Pocket008")
pocket9.Profile = sketch14
pocket9.Type = "UpToFirst"
pocket9.Reversed = True

# Sketch on XZ plane
sketch15 = body.newObject("Sketcher::SketchObject", "Sketch014")
sketch15.AttachmentSupport = (doc.getObject("XZ_Plane"), [""])
sketch15.MapMode = "FlatFace"
sketch15.addGeometry(Part.Circle(App.Vector(5, 0, 0), App.Vector(0, 0, 1), 1.5), False)
sketch15.addConstraint(Sketcher.Constraint("PointOnObject", 0, 3, -1))
sketch15.addConstraint(Sketcher.Constraint("Diameter", 0, Q("3 mm")))
sketch15.addConstraint(Sketcher.Constraint("DistanceX", -1, 1, 0, 3, Q("5 mm")))
pocket10 = body.newObject("PartDesign::Pocket", "Pocket009")
pocket10.Profile = sketch15
pocket10.Type = "UpToFirst"
pocket10.Reversed = True

# Sketch on XZ plane
sketch16 = body.newObject("Sketcher::SketchObject", "Sketch015")
sketch16.AttachmentSupport = (doc.getObject("XZ_Plane"), [""])
sketch16.MapMode = "FlatFace"
sketch16.addGeometry(Part.Circle(App.Vector(23.5, -13.2, 0), App.Vector(0, 0, 1), 1.5), False)
sketch16.addConstraint(Sketcher.Constraint("Diameter", 0, Q("3 mm")))
sketch16.addConstraint(Sketcher.Constraint("DistanceX", -1, 1, 0, 3, Q("23.5 mm")))
sketch16.addConstraint(Sketcher.Constraint("DistanceY", 0, 3, -1, 1, Q("13.25 mm")))
pocket11 = body.newObject("PartDesign::Pocket", "Pocket010")
pocket11.Profile = sketch16
pocket11.Type = "UpToFirst"
pocket11.Reversed = True

# Sketch on XZ plane
sketch17 = body.newObject("Sketcher::SketchObject", "Sketch016")
sketch17.AttachmentSupport = (doc.getObject("XZ_Plane"), [""])
sketch17.MapMode = "FlatFace"
add_polygon(sketch17, [(-100, 50), (-100, -50), (100, -50), (100, 50)])  # lines 0-3
sketch17.addConstraint(Sketcher.Constraint("Vertical", 0))
sketch17.addConstraint(Sketcher.Constraint("Horizontal", 1))
sketch17.addConstraint(Sketcher.Constraint("Vertical", 2))
sketch17.addConstraint(Sketcher.Constraint("Horizontal", 3))
sketch17.addConstraint(Sketcher.Constraint("Symmetric", 0, 2, 2, 2, -1, 1))
sketch17.addConstraint(Sketcher.Constraint("DistanceX", 1, 1, 1, 2, Q("200 mm")))
sketch17.addConstraint(Sketcher.Constraint("DistanceY", 0, 2, 0, 1, Q("100 mm")))
pocket12 = body.newObject("PartDesign::Pocket", "Pocket011")
pocket12.Profile = sketch17
pocket12.Type = "ThroughAll"
pocket12.Reversed = True

doc.recompute()
